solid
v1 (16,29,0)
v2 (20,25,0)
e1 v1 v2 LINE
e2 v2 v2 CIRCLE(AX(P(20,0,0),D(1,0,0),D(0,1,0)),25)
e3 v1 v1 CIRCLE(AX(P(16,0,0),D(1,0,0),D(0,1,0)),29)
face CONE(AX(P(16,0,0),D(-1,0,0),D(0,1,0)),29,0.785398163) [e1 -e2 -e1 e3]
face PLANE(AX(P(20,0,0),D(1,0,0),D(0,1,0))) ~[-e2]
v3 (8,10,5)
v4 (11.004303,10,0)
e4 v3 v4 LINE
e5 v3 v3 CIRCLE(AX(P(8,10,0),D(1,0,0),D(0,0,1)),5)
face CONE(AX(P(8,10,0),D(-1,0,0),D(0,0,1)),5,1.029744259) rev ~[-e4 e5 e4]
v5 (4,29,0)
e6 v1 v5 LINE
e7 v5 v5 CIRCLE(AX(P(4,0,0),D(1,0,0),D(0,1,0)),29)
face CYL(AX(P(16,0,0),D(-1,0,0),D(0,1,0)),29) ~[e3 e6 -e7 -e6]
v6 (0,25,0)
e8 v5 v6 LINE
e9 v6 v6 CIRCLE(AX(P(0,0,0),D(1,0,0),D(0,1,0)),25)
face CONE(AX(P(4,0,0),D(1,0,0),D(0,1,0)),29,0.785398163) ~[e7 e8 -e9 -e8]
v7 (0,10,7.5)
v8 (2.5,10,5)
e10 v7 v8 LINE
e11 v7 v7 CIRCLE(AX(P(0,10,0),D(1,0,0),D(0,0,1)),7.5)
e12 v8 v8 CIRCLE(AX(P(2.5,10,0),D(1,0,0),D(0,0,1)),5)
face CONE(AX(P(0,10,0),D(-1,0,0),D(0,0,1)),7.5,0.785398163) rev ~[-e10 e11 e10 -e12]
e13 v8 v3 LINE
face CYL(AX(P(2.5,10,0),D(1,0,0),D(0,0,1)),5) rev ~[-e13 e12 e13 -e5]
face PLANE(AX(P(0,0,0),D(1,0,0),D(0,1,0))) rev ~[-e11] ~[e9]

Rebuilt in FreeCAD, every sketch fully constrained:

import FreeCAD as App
import Part
import Sketcher
from FreeCAD import Vector


def add_polygon(sketch, points):
    """Adds a closed chain of lines whose ends are joined by coincident constraints."""
    first, n = sketch.GeometryCount, len(points)
    for a, b in zip(points, points[1:] + points[:1]):
        sketch.addGeometry(Part.LineSegment(App.Vector(*a, 0), App.Vector(*b, 0)), False)
    for i in range(n):
        sketch.addConstraint(Sketcher.Constraint("Coincident", first + i, 2, first + (i + 1) % n, 1))

doc = App.newDocument("Part")
params = doc.addObject("Spreadsheet::Sheet", "Params")
for row, (alias, value) in enumerate([
    ("sketch1_width", "20 mm"),
    ("revolution_angle", "360 deg"),
    ("sketch2_diameter", "10 mm"),
    ("hole_diameter", "10 mm"),
    ("hole_depth", "8 mm"),
    ("hole_csink_diameter", "15 mm"),
], start=1):
    params.set(f"A{row}", alias)
    params.set(f"B{row}", "=" + value)
    params.setAlias(f"B{row}", alias)

body = doc.addObject("PartDesign::Body", "Body")

# Sketch on XY plane
sketch1 = body.newObject("Sketcher::SketchObject", "Sketch")
sketch1.AttachmentSupport = (doc.getObject("XY_Plane"), [""])
sketch1.MapMode = "FlatFace"
add_polygon(sketch1, [(0, 25), (0, 0), (20, 0), (20, 25), (16, 29), (4, 29)])  # lines 0-5
sketch1.addConstraint(Sketcher.Constraint("Vertical", 0))
sketch1.addConstraint(Sketcher.Constraint("Horizontal", 1))
sketch1.addConstraint(Sketcher.Constraint("Vertical", 2))
sketch1.addConstraint(Sketcher.Constraint("Horizontal", 4))
sketch1.addConstraint(Sketcher.Constraint("Coincident", 0, 2, -1, 1))
sketch1.addConstraint(Sketcher.Constraint("Perpendicular", 3, 5))
sketch1.addConstraint(Sketcher.Constraint("Horizontal", 2, 2, 5, 2))
sketch1.addConstraint(Sketcher.Constraint("Equal", 3, 5))
sketch1.addConstraint(Sketcher.Constraint("DistanceX", 1, 1, 1, 2, 20.0))
sketch1.addConstraint(Sketcher.Constraint("DistanceY", -1, 1, 3, 2, 29.0))
sketch1.addConstraint(Sketcher.Constraint("DistanceX", -1, 1, 4, 2, 4.0))
sketch1.setExpression("Constraints[14]", "Params.sketch1_width")
revolution = body.newObject("PartDesign::Revolution", "Revolution")
revolution.Profile = sketch1
revolution.ReferenceAxis = (sketch1, ["H_Axis"])
revolution.setExpression("Angle", "Params.revolution_angle")

# Sketch on YZ plane
sketch2 = body.newObject("Sketcher::SketchObject", "Sketch001")
sketch2.AttachmentSupport = (doc.getObject("YZ_Plane"), [""])
sketch2.MapMode = "FlatFace"
sketch2.addGeometry(Part.Circle(Vector(10, 0, 0), Vector(0, 0, 1), 5), False)
sketch2.addConstraint(Sketcher.Constraint("PointOnObject", 0, 3, -1))
sketch2.addConstraint(Sketcher.Constraint("Diameter", 0, 10.0))
sketch2.addConstraint(Sketcher.Constraint("DistanceX", -1, 1, 0, 3, 10.0))
sketch2.setExpression("Constraints[1]", "Params.sketch2_diameter")
doc.recompute()
hole = body.newObject("PartDesign::Hole", "Hole")
hole.Profile = sketch2
hole.ThreadType = "None"
hole.setExpression("Diameter", "Params.hole_diameter")
hole.DepthType = "Dimension"
hole.setExpression("Depth", "Params.hole_depth")
hole.DrillPoint = "Angled"
hole.DrillPointAngle = 118
hole.HoleCutType = "Countersink"
hole.setExpression("HoleCutDiameter", "Params.hole_csink_diameter")
hole.HoleCutCountersinkAngle = 90
hole.Reversed = True

doc.recompute()
